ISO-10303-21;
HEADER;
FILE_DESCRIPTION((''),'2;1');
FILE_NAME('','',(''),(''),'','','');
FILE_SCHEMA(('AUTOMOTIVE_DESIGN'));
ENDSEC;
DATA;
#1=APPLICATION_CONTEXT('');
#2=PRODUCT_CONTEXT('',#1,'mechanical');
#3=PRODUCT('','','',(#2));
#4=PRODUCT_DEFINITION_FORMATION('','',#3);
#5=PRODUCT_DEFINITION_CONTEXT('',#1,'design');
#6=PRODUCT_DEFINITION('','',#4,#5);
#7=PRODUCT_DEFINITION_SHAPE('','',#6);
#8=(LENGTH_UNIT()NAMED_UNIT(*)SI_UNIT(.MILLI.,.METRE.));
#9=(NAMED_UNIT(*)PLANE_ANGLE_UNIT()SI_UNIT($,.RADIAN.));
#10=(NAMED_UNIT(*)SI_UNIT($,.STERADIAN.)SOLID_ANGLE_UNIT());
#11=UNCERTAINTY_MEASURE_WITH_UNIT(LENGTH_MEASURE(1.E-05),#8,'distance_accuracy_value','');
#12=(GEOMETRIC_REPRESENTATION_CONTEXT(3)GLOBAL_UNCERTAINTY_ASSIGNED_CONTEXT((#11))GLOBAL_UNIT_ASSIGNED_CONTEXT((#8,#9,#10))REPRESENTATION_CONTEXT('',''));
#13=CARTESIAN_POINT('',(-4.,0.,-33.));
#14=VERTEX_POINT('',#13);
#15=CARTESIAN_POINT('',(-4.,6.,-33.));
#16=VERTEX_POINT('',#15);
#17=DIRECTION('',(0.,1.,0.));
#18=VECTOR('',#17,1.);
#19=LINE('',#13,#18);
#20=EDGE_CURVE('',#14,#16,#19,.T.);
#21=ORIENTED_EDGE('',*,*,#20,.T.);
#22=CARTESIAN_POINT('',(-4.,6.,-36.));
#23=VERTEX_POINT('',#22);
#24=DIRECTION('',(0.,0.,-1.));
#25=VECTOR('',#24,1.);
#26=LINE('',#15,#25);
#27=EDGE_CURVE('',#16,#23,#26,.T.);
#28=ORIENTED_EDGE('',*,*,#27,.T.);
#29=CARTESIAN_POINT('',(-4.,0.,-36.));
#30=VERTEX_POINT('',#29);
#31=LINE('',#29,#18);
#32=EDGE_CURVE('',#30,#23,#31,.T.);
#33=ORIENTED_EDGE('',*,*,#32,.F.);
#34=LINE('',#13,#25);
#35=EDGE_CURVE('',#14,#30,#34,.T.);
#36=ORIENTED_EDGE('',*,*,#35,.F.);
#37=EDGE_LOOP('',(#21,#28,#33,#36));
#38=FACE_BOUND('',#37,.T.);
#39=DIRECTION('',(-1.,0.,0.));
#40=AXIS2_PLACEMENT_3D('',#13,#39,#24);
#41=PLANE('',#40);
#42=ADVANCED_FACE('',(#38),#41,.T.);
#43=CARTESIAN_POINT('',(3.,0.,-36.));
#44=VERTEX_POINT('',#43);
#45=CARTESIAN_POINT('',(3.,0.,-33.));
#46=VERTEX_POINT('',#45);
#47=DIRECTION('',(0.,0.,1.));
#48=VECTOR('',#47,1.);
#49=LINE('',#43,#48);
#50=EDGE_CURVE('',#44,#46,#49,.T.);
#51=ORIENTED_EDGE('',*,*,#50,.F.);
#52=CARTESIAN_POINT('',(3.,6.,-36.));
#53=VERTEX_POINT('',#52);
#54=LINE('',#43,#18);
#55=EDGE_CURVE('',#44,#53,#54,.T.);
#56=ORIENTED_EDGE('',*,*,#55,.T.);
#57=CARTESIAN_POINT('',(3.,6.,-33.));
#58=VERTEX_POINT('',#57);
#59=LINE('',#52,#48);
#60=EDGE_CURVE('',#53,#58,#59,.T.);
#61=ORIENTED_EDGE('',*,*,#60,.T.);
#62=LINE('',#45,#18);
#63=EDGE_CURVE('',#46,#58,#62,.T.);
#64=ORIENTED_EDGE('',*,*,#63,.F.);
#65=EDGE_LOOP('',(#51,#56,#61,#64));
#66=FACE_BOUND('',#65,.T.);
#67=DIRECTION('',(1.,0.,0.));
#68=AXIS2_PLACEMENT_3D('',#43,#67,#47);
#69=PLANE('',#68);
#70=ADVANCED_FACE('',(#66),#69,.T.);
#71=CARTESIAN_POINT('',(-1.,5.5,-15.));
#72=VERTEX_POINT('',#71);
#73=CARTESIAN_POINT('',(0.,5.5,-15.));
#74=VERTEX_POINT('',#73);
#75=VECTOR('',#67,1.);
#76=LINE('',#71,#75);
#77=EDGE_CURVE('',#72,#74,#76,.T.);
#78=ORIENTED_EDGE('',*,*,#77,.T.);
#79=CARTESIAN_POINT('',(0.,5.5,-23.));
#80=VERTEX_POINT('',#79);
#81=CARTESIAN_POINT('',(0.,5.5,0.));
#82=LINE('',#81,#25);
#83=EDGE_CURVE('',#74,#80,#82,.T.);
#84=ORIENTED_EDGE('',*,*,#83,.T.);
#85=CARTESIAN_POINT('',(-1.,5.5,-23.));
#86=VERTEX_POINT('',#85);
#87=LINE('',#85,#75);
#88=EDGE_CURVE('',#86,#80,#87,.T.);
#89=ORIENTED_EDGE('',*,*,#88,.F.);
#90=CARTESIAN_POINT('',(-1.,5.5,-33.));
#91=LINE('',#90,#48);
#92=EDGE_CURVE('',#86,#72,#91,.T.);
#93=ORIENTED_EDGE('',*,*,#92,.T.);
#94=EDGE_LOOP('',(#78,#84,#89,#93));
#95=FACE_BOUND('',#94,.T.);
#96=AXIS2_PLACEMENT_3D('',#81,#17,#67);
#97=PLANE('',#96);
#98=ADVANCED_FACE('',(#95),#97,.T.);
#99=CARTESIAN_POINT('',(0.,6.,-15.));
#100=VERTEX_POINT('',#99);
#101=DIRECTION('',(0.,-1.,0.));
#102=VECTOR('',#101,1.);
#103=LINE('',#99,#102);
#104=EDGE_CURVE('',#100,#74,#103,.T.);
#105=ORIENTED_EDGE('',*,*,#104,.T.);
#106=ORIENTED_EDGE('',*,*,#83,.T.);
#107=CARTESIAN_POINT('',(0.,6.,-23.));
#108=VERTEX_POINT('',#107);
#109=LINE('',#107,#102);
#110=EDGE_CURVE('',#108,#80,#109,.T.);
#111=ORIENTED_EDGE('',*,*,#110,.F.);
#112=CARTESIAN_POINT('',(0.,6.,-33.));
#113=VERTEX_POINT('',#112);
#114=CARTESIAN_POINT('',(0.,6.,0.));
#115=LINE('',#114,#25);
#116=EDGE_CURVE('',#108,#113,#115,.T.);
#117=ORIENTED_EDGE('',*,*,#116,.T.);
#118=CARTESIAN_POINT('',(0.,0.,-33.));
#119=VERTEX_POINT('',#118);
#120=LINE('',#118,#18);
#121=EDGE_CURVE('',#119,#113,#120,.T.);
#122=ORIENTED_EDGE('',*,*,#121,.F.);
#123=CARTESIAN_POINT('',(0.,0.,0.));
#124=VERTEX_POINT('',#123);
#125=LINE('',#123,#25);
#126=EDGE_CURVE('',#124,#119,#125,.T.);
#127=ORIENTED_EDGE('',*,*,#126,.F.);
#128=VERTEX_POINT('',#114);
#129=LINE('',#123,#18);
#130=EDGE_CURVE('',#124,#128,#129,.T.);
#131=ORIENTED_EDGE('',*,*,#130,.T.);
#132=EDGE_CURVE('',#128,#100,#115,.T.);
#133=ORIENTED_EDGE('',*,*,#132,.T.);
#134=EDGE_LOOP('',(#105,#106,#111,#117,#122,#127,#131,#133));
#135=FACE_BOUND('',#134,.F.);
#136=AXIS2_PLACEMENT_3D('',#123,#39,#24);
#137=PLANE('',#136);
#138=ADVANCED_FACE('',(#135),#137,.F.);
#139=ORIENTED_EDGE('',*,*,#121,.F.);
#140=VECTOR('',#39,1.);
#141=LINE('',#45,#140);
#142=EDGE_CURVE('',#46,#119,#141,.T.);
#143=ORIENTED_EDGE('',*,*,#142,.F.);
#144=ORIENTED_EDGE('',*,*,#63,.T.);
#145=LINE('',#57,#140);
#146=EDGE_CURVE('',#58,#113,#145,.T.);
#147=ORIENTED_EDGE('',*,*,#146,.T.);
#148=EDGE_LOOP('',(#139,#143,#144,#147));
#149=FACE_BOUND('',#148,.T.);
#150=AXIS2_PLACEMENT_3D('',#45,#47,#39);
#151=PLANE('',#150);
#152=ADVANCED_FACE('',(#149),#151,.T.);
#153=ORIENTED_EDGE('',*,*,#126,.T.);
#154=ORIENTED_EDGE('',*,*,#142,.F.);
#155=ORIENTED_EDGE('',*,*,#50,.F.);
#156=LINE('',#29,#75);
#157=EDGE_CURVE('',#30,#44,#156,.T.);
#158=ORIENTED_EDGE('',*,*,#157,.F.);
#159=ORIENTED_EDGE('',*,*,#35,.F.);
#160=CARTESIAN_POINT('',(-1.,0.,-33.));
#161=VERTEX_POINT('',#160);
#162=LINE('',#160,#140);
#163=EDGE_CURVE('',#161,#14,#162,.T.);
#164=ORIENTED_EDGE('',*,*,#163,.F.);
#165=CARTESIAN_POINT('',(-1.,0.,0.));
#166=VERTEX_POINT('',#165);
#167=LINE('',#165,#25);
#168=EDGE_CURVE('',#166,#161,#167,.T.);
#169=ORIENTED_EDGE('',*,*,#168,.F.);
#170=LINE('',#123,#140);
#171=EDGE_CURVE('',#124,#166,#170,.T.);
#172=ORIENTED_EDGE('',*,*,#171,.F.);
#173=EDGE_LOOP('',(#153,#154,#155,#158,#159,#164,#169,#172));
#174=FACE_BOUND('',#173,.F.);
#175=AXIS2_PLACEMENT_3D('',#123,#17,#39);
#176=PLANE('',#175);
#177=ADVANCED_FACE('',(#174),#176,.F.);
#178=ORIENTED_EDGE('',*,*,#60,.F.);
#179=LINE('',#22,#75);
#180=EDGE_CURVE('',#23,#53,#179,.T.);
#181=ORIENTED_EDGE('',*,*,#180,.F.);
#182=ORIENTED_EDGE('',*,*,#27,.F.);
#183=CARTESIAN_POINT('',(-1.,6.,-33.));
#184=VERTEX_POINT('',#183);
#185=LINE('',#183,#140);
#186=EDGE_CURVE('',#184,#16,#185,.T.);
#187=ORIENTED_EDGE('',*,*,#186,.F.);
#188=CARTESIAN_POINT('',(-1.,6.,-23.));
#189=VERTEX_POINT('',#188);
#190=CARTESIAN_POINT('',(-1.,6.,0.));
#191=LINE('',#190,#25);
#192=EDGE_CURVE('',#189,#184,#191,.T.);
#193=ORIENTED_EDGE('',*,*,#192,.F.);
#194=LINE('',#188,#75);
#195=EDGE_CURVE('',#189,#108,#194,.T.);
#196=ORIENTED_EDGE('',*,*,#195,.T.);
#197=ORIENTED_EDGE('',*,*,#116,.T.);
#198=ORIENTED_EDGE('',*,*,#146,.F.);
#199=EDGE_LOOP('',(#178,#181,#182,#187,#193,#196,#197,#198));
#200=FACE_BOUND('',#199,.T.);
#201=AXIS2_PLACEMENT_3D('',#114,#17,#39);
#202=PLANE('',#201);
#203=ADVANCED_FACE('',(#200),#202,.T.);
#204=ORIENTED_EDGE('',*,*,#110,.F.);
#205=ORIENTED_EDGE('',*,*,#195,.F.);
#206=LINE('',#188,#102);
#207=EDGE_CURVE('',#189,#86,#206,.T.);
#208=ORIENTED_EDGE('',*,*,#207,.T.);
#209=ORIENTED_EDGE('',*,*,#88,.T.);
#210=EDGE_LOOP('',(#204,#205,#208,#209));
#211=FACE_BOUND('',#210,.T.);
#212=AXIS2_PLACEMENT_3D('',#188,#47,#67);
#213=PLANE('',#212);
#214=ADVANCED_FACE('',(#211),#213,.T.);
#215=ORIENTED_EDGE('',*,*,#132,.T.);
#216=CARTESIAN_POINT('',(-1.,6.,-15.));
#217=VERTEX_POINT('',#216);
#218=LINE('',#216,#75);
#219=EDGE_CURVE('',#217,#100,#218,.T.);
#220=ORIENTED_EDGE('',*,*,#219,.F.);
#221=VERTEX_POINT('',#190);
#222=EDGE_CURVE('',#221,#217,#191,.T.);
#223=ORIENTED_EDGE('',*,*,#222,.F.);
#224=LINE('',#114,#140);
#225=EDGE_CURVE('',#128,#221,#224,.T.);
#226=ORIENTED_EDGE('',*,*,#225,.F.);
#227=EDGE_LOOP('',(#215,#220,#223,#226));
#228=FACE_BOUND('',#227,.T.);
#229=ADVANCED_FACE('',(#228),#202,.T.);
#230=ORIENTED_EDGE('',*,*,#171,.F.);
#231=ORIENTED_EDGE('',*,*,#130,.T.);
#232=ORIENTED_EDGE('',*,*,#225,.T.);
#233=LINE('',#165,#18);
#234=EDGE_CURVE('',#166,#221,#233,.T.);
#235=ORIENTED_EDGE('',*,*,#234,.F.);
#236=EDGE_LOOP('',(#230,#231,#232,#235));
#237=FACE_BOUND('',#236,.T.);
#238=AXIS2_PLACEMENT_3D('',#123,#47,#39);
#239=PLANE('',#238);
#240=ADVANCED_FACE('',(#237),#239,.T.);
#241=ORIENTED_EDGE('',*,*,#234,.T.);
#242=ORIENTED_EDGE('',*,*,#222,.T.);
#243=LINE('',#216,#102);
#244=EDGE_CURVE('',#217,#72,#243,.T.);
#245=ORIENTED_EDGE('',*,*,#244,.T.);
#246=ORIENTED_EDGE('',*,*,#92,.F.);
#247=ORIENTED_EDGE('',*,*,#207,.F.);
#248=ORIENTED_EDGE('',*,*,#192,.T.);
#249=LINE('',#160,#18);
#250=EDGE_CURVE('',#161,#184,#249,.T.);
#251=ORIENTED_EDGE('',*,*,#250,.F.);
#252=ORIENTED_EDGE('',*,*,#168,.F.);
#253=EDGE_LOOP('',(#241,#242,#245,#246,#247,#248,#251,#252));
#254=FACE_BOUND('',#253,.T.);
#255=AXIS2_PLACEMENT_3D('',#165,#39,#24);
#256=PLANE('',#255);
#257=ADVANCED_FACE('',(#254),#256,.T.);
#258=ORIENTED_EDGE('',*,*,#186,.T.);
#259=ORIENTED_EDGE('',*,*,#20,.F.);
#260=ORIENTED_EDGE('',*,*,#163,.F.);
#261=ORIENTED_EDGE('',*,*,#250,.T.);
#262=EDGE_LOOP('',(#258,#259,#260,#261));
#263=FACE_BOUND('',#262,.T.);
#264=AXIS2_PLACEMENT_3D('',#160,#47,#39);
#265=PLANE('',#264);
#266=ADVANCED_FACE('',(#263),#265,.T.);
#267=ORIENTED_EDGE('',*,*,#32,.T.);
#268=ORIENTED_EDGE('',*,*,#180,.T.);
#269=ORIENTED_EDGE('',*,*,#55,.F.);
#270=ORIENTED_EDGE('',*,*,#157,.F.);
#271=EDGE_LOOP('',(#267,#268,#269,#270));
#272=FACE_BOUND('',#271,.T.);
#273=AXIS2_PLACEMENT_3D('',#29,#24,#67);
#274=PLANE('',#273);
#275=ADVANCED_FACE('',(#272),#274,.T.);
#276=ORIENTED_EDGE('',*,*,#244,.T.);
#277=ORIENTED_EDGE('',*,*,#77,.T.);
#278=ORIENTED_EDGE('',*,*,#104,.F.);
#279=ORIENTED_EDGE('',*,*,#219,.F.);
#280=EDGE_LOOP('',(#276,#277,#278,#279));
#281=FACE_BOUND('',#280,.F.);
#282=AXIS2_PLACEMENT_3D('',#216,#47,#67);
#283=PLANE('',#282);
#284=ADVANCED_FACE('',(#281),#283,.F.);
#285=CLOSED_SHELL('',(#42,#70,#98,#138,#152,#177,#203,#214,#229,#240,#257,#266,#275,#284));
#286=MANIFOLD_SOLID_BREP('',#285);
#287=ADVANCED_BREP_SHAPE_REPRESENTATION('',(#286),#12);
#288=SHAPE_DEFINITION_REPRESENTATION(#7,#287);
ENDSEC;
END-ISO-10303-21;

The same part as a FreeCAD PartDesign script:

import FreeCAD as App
import Part
import Sketcher
from FreeCAD import Vector
Q = App.Units.Quantity

doc = App.newDocument("Part")
body = doc.addObject("PartDesign::Body", "Body")

# Sketch on XZ plane
sketch1 = doc.addObject("Sketcher::SketchObject", "Sketch")
body.addObject(sketch1)
sketch1.AttachmentSupport = (doc.XZ_Plane, [""])
sketch1.MapMode = "FlatFace"
sketch1.addGeometry(Part.LineSegment(Vector(-1, 0, 0), Vector(0, 0, 0)), False)
sketch1.addGeometry(Part.LineSegment(Vector(0, 0, 0), Vector(0, -33, 0)), False)
sketch1.addGeometry(Part.LineSegment(Vector(0, -33, 0), Vector(3, -33, 0)), False)
sketch1.addGeometry(Part.LineSegment(Vector(3, -33, 0), Vector(3, -36, 0)), False)
sketch1.addGeometry(Part.LineSegment(Vector(3, -36, 0), Vector(-4, -36, 0)), False)
sketch1.addGeometry(Part.LineSegment(Vector(-4, -36, 0), Vector(-4, -33, 0)), False)
sketch1.addGeometry(Part.LineSegment(Vector(-4, -33, 0), Vector(-1, -33, 0)), False)
sketch1.addGeometry(Part.LineSegment(Vector(-1, -33, 0), Vector(-1, 0, 0)), False)
sketch1.addConstraint(Sketcher.Constraint("Coincident", 0, 2, 1, 1))
sketch1.addConstraint(Sketcher.Constraint("Coincident", 1, 2, 2, 1))
sketch1.addConstraint(Sketcher.Constraint("Coincident", 2, 2, 3, 1))
sketch1.addConstraint(Sketcher.Constraint("Coincident", 3, 2, 4, 1))
sketch1.addConstraint(Sketcher.Constraint("Coincident", 4, 2, 5, 1))
sketch1.addConstraint(Sketcher.Constraint("Coincident", 5, 2, 6, 1))
sketch1.addConstraint(Sketcher.Constraint("Coincident", 6, 2, 7, 1))
sketch1.addConstraint(Sketcher.Constraint("Coincident", 7, 2, 0, 1))
sketch1.addConstraint(Sketcher.Constraint("Horizontal", 0))
sketch1.addConstraint(Sketcher.Constraint("Vertical", 1))
sketch1.addConstraint(Sketcher.Constraint("Horizontal", 2))
sketch1.addConstraint(Sketcher.Constraint("Vertical", 3))
sketch1.addConstraint(Sketcher.Constraint("Horizontal", 4))
sketch1.addConstraint(Sketcher.Constraint("Vertical", 5))
sketch1.addConstraint(Sketcher.Constraint("Horizontal", 6))
sketch1.addConstraint(Sketcher.Constraint("Vertical", 7))
sketch1.addConstraint(Sketcher.Constraint("Coincident", 0, 2, -1, 1))
sketch1.addConstraint(Sketcher.Constraint("Horizontal", 2, 2, 5, 2))
sketch1.addConstraint(Sketcher.Constraint("Equal", 2, 6))
sketch1.addConstraint(Sketcher.Constraint("Equal", 6, 3))
sketch1.addConstraint(Sketcher.Constraint("DistanceX", 0, 1, 0, 2, Q("1 mm")))
sketch1.addConstraint(Sketcher.Constraint("DistanceX", 2, 1, 2, 2, Q("3 mm")))
sketch1.addConstraint(Sketcher.Constraint("DistanceY", 1, 2, 1, 1, Q("33 mm")))
pad1 = doc.addObject("PartDesign::Pad", "Pad")
body.addObject(pad1)
pad1.Profile = sketch1
pad1.Length = 6
pad1.Reversed = True

# Sketch on XZ plane
sketch2 = doc.addObject("Sketcher::SketchObject", "Sketch001")
body.addObject(sketch2)
sketch2.AttachmentSupport = (doc.XZ_Plane, [""])
sketch2.MapMode = "FlatFace"
sketch2.AttachmentOffset = App.Placement(Vector(0, 0, -6), App.Rotation())
sketch2.addGeometry(Part.LineSegment(Vector(0, -23, 0), Vector(-1, -23, 0)), False)
sketch2.addGeometry(Part.LineSegment(Vector(-1, -23, 0), Vector(-1, -15, 0)), False)
sketch2.addGeometry(Part.LineSegment(Vector(-1, -15, 0), Vector(0, -15, 0)), False)
sketch2.addGeometry(Part.LineSegment(Vector(0, -15, 0), Vector(0, -23, 0)), False)
sketch2.addConstraint(Sketcher.Constraint("Coincident", 0, 2, 1, 1))
sketch2.addConstraint(Sketcher.Constraint("Coincident", 1, 2, 2, 1))
sketch2.addConstraint(Sketcher.Constraint("Coincident", 2, 2, 3, 1))
sketch2.addConstraint(Sketcher.Constraint("Coincident", 3, 2, 0, 1))
sketch2.addConstraint(Sketcher.Constraint("Horizontal", 0))
sketch2.addConstraint(Sketcher.Constraint("Vertical", 1))
sketch2.addConstraint(Sketcher.Constraint("Horizontal", 2))
sketch2.addConstraint(Sketcher.Constraint("Vertical", 3))
sketch2.addConstraint(Sketcher.Constraint("PointOnObject", 2, 2, -2))
sketch2.addConstraint(Sketcher.Constraint("DistanceY", 0, 2, -1, 1, Q("23 mm")))
sketch2.addConstraint(Sketcher.Constraint("DistanceY", 1, 2, -1, 1, Q("15 mm")))
sketch2.addConstraint(Sketcher.Constraint("DistanceX", 0, 2, 0, 1, Q("1 mm")))
pocket1 = doc.addObject("PartDesign::Pocket", "Pocket")
body.addObject(pocket1)
pocket1.Profile = sketch2
pocket1.Length = 0.5
pocket1.Reversed = True

doc.recompute()
